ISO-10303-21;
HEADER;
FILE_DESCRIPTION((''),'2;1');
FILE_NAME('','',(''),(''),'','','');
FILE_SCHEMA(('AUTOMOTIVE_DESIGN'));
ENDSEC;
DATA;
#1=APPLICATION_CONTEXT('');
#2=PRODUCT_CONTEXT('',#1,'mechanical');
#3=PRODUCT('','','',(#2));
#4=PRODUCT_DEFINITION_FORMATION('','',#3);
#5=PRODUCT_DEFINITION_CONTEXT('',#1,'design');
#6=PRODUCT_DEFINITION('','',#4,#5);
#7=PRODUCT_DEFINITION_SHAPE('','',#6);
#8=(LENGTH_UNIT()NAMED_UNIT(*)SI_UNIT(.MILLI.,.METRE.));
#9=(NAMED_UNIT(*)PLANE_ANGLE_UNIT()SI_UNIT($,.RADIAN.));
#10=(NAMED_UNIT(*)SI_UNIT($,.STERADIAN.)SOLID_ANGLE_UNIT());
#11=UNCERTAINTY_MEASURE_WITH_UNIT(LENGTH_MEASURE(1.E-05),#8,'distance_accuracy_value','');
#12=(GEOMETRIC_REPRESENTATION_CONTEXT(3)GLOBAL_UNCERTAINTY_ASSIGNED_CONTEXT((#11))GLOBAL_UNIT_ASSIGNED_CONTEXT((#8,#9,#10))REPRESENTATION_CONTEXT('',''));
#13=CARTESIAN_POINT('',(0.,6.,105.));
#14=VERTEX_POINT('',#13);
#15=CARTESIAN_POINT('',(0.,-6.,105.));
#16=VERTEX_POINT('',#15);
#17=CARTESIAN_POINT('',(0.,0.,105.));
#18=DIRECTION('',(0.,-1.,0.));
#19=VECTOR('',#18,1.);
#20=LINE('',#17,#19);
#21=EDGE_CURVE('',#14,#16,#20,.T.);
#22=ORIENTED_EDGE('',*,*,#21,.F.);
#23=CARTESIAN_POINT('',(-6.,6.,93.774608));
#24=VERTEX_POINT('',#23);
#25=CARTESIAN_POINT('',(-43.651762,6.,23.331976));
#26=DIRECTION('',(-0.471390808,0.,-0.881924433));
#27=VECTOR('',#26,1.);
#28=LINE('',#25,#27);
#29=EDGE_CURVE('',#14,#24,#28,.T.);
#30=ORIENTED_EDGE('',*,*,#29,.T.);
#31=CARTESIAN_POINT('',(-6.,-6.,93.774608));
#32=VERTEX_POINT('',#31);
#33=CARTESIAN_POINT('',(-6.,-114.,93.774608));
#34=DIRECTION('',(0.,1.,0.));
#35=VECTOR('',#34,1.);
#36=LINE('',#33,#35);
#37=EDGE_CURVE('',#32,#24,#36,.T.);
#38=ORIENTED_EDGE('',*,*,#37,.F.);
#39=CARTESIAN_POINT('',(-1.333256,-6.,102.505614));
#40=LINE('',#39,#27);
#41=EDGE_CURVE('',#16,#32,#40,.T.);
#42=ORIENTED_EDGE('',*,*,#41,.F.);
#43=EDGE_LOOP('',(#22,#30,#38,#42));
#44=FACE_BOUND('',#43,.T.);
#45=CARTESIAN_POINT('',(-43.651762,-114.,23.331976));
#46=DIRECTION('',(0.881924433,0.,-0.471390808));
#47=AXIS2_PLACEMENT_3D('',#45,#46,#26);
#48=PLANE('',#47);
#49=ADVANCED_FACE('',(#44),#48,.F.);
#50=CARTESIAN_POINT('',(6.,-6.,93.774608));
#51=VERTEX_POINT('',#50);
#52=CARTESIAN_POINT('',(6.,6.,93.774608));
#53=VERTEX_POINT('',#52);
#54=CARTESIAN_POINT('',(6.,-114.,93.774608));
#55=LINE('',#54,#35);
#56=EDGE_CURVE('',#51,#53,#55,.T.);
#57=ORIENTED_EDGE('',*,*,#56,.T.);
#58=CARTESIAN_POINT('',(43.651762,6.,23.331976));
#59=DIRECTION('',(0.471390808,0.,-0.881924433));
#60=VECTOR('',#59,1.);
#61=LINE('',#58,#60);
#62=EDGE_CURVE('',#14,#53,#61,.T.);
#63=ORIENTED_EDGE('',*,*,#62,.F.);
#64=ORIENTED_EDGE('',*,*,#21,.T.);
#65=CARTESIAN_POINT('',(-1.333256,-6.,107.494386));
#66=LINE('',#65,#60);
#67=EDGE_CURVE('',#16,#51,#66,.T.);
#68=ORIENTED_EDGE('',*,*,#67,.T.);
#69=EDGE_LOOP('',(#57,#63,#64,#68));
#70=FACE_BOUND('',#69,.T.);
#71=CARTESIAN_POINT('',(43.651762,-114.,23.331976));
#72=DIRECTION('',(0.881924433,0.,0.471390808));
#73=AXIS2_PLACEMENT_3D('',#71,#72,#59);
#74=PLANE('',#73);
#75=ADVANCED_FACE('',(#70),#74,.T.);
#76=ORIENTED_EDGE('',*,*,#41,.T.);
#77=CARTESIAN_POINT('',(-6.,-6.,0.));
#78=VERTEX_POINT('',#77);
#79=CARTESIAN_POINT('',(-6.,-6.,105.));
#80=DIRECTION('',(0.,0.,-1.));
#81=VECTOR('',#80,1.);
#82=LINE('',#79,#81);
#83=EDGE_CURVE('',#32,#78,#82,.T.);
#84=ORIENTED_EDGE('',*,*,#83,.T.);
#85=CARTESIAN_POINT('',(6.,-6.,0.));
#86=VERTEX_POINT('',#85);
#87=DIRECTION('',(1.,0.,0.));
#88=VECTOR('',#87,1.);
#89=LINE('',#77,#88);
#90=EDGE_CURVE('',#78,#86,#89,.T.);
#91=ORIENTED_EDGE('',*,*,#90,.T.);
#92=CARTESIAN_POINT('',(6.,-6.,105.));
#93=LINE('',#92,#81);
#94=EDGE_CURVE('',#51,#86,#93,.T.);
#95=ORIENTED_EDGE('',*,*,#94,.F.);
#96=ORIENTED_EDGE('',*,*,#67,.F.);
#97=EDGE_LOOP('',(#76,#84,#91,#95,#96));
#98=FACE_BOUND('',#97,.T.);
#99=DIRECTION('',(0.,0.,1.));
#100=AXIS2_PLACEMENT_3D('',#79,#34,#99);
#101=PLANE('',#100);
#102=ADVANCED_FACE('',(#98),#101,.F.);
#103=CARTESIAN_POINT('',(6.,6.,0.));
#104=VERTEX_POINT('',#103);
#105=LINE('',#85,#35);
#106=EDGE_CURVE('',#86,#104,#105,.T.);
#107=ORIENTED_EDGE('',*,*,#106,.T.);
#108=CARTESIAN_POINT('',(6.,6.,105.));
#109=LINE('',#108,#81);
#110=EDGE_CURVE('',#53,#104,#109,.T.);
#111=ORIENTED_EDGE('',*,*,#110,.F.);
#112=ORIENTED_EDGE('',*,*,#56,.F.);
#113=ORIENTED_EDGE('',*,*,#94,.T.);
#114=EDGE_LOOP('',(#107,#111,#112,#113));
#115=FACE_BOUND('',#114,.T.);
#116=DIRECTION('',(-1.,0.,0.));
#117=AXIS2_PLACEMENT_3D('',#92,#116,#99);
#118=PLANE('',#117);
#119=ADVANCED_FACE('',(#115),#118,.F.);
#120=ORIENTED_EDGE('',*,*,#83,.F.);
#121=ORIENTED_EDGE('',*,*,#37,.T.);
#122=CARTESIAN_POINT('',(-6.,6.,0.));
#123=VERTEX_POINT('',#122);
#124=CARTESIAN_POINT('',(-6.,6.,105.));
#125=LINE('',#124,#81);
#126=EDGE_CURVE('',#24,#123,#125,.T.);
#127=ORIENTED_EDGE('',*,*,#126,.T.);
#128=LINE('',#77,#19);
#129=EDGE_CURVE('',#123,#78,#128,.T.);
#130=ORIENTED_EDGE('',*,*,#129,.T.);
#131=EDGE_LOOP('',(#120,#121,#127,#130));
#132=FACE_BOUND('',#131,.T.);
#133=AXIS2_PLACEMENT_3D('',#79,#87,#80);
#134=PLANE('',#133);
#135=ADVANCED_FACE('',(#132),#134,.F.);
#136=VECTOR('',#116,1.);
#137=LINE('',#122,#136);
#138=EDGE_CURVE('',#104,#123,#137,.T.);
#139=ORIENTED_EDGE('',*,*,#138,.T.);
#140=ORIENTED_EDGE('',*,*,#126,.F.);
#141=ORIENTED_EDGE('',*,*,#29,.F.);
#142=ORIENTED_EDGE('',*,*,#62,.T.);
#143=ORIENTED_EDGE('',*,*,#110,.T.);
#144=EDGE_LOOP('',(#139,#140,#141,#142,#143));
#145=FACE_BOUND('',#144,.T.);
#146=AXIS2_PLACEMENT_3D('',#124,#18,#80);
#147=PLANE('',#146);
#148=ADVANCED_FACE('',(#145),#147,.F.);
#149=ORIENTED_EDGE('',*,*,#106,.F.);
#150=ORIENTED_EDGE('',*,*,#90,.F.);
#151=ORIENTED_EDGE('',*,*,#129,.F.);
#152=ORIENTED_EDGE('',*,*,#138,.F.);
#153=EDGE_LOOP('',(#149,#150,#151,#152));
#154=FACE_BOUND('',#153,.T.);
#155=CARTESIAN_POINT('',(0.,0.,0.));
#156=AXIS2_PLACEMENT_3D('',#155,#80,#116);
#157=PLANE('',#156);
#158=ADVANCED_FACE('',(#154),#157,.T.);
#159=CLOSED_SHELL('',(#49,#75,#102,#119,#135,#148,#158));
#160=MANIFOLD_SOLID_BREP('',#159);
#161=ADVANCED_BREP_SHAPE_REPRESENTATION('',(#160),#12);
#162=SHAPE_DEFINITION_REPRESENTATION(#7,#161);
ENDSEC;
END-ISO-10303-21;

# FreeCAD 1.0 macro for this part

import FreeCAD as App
import Part
import Sketcher

V = App.Vector
Q = App.Units.Quantity

doc = App.newDocument("Part")
body = doc.addObject("PartDesign::Body", "Body")

sketch1 = body.newObject("Sketcher::SketchObject", "Sketch")
sketch1.AttachmentSupport = (doc.getObject("XY_Plane"), [""])
sketch1.MapMode = "FlatFace"
sketch1.addGeometry([
    Part.LineSegment(V(-6, 6, 0), V(-6, -6, 0)),
    Part.LineSegment(V(-6, -6, 0), V(6, -6, 0)),
    Part.LineSegment(V(6, -6, 0), V(6, 6, 0)),
    Part.LineSegment(V(6, 6, 0), V(-6, 6, 0)),
], False)
sketch1.addConstraint([
    Sketcher.Constraint("Coincident", 0, 2, 1, 1),
    Sketcher.Constraint("Coincident", 1, 2, 2, 1),
    Sketcher.Constraint("Coincident", 2, 2, 3, 1),
    Sketcher.Constraint("Coincident", 3, 2, 0, 1),
    Sketcher.Constraint("Vertical", 0),
    Sketcher.Constraint("Horizontal", 1),
    Sketcher.Constraint("Vertical", 2),
    Sketcher.Constraint("Horizontal", 3),
    Sketcher.Constraint("Symmetric", 0, 2, 2, 2, -1, 1),
    Sketcher.Constraint("Equal", 3, 0),
    Sketcher.Constraint("DistanceX", 1, 1, 1, 2, Q("12 mm")),
])
pad1 = body.newObject("PartDesign::Pad", "Pad")
pad1.Profile = sketch1
pad1.Length = 105

sketch2 = body.newObject("Sketcher::SketchObject", "Sketch001")
sketch2.AttachmentSupport = (doc.getObject("XZ_Plane"), [""])
sketch2.MapMode = "FlatFace"
sketch2.AttachmentOffset = App.Placement(V(0, 0, -6), App.Rotation())
sketch2.addGeometry([
    Part.LineSegment(V(-6, 105, 0), V(0, 105, 0)),
    Part.LineSegment(V(0, 105, 0), V(-6, 94, 0)),
    Part.LineSegment(V(-6, 94, 0), V(-6, 105, 0)),
    Part.LineSegment(V(6, 94, 0), V(0, 105, 0)),
    Part.LineSegment(V(0, 105, 0), V(6, 105, 0)),
    Part.LineSegment(V(6, 105, 0), V(6, 94, 0)),
], False)
sketch2.addConstraint([
    Sketcher.Constraint("Coincident", 0, 2, 1, 1),
    Sketcher.Constraint("Coincident", 1, 2, 2, 1),
    Sketcher.Constraint("Coincident", 2, 2, 0, 1),
    Sketcher.Constraint("Coincident", 3, 2, 4, 1),
    Sketcher.Constraint("Coincident", 4, 2, 5, 1),
    Sketcher.Constraint("Coincident", 5, 2, 3, 1),
    Sketcher.Constraint("Horizontal", 0),
    Sketcher.Constraint("Vertical", 2),
    Sketcher.Constraint("Horizontal", 4),
    Sketcher.Constraint("Vertical", 5),
    Sketcher.Constraint("Coincident", 3, 2, 0, 2),
    Sketcher.Constraint("Symmetric", 1, 2, 5, 2, -2),
    Sketcher.Constraint("PointOnObject", 0, 2, -2),
    Sketcher.Constraint("DistanceX", 0, 1, 0, 2, Q("6 mm")),
    Sketcher.Constraint("DistanceY", -1, 1, 0, 2, Q("105 mm")),
    Sketcher.Constraint("DistanceY", 2, 1, 2, 2, Q("11.225392 mm")),
])
pocket1 = body.newObject("PartDesign::Pocket", "Pocket")
pocket1.Profile = sketch2
pocket1.Length = 120
pocket1.Reversed = True

doc.recompute()
